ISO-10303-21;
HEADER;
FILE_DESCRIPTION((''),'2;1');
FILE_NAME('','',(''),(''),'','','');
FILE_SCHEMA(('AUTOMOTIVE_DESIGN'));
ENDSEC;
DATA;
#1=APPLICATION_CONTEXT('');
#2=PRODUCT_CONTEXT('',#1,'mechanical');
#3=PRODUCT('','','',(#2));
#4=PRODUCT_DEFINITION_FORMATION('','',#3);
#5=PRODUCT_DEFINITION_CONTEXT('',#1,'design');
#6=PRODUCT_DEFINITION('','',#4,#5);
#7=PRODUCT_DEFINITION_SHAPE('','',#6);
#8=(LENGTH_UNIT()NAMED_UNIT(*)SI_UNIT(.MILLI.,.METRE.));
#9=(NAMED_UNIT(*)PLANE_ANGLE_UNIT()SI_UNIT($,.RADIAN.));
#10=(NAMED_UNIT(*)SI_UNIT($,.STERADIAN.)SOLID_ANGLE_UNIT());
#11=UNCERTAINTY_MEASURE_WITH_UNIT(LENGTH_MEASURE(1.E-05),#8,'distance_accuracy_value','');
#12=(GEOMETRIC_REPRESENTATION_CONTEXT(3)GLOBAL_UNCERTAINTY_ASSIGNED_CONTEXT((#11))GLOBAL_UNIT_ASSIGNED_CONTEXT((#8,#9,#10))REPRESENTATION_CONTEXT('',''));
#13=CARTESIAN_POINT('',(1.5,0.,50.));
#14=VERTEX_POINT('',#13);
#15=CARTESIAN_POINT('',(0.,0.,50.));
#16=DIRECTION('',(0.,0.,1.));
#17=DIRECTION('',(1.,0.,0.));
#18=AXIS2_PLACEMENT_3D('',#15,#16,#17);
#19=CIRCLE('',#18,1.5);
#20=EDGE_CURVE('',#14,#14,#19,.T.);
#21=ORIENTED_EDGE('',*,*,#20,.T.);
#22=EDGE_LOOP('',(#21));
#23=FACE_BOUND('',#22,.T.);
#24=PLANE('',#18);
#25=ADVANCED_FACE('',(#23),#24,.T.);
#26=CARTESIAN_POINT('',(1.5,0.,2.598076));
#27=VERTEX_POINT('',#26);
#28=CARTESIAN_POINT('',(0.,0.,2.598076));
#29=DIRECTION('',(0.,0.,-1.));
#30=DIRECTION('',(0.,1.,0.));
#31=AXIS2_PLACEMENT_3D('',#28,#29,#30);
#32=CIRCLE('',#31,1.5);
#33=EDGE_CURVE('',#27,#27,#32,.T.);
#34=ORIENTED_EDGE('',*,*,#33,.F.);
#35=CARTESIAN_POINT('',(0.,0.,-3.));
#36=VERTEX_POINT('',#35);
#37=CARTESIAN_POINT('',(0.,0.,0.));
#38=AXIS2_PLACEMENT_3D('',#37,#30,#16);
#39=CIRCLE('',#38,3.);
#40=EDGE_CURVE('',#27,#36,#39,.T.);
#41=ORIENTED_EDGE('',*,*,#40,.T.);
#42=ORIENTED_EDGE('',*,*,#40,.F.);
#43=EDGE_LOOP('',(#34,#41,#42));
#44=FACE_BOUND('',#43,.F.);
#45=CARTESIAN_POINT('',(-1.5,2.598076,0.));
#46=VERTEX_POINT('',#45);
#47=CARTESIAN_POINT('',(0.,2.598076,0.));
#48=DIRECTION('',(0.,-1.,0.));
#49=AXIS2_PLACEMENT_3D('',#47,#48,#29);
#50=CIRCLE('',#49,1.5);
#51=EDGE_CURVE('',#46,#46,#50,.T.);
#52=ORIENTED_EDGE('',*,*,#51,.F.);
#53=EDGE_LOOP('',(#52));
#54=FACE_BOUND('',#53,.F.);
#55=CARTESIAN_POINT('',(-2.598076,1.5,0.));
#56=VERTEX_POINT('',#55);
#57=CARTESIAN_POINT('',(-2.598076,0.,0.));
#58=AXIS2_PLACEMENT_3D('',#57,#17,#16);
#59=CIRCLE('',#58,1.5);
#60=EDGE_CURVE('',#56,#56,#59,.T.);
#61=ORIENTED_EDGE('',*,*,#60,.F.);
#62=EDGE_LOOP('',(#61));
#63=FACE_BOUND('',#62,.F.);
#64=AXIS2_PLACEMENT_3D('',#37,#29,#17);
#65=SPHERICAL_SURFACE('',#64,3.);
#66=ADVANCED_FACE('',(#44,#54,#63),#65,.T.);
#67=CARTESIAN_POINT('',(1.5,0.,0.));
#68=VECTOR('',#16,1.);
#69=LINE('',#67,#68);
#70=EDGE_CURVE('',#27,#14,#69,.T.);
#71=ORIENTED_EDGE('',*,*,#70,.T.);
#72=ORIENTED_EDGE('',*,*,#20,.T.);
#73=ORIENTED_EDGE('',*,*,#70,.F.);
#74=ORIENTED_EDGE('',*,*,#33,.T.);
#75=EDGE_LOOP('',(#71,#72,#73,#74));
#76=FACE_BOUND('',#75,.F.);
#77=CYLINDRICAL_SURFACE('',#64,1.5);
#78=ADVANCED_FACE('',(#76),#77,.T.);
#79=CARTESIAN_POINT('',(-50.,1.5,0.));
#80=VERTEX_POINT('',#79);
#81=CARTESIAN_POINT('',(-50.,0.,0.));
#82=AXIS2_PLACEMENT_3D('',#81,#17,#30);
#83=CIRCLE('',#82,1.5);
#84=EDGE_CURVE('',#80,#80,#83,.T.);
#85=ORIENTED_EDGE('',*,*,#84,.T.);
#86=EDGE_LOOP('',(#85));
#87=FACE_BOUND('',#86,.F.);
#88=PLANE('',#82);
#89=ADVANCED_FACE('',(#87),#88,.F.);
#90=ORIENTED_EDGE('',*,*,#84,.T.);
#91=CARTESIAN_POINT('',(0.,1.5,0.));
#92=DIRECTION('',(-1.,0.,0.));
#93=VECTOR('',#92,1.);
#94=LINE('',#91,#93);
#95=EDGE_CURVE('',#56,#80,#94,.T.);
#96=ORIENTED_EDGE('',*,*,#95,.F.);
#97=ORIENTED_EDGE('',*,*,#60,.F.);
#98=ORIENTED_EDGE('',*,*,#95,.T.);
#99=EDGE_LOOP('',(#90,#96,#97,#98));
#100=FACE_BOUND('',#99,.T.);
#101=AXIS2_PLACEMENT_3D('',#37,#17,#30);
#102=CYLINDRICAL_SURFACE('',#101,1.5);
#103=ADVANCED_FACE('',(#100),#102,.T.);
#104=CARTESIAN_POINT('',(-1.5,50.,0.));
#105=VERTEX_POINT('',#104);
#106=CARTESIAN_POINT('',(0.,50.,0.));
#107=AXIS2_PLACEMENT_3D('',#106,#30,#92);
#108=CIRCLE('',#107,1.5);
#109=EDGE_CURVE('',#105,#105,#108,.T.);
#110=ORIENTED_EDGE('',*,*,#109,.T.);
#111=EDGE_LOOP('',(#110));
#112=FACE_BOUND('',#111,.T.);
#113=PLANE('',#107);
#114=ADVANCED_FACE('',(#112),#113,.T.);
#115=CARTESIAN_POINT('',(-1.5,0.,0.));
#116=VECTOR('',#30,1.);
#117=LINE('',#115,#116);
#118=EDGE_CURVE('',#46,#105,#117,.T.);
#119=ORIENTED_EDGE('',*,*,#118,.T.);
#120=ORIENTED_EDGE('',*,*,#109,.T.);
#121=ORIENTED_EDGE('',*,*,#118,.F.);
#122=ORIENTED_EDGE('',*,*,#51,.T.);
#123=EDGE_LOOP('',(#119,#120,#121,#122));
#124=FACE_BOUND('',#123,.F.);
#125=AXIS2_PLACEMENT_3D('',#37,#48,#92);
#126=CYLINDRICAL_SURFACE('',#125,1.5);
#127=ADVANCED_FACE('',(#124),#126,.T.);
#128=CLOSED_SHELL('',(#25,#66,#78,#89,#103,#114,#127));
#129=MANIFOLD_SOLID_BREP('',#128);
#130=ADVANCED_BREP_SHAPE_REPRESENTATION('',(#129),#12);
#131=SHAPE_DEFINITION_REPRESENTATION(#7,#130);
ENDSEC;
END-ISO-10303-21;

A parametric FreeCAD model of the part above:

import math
import FreeCAD as App
import Part
import Sketcher
Q = App.Units.Quantity

doc = App.newDocument("Part")
body = doc.addObject("PartDesign::Body", "Body")

sketch1 = doc.addObject("Sketcher::SketchObject", "Sketch")
body.addObject(sketch1)
sketch1.AttachmentSupport = (doc.XZ_Plane, [""])
sketch1.MapMode = "FlatFace"
sketch1.addGeometry(Part.Circle(App.Vector(0, 0, 0), App.Vector(0, 0, 1), 1.5), False)
sketch1.addConstraint([
    Sketcher.Constraint("Coincident", 0, 3, -1, 1),
    Sketcher.Constraint("Diameter", 0, Q("3 mm")),
])
pad1 = doc.addObject("PartDesign::Pad", "Pad")
body.addObject(pad1)
pad1.Profile = sketch1
pad1.Length = 50
pad1.Reversed = True

sketch2 = doc.addObject("Sketcher::SketchObject", "Sketch001")
body.addObject(sketch2)
sketch2.AttachmentSupport = (doc.XZ_Plane, [""])
sketch2.MapMode = "FlatFace"
sketch2.addGeometry([
    Part.LineSegment(App.Vector(0, -3, 0), App.Vector(0, 3, 0)),
    Part.ArcOfCircle(Part.Circle(App.Vector(0, 0, 0), App.Vector(0, 0, 1), 3), math.radians(-90), math.radians(90)),
], False)
sketch2.addConstraint([
    Sketcher.Constraint("Coincident", 0, 1, 1, 1),
    Sketcher.Constraint("Coincident", 1, 2, 0, 2),
    Sketcher.Constraint("Vertical", 0),
    Sketcher.Constraint("Coincident", 1, 3, -1, 1),
    Sketcher.Constraint("PointOnObject", 0, 1, -2),
    Sketcher.Constraint("Radius", 1, Q("3 mm")),
])
revolution = doc.addObject("PartDesign::Revolution", "Revolution")
body.addObject(revolution)
revolution.Profile = sketch2
revolution.ReferenceAxis = (sketch2, ["V_Axis"])
revolution.Angle = 360

sketch3 = doc.addObject("Sketcher::SketchObject", "Sketch002")
body.addObject(sketch3)
sketch3.AttachmentSupport = (doc.XY_Plane, [""])
sketch3.MapMode = "FlatFace"
sketch3.addGeometry(Part.Circle(App.Vector(0, 0, 0), App.Vector(0, 0, 1), 1.5), False)
sketch3.addConstraint([
    Sketcher.Constraint("Coincident", 0, 3, -1, 1),
    Sketcher.Constraint("Diameter", 0, Q("3 mm")),
])
pad2 = doc.addObject("PartDesign::Pad", "Pad001")
body.addObject(pad2)
pad2.Profile = sketch3
pad2.Length = 50

sketch4 = doc.addObject("Sketcher::SketchObject", "Sketch003")
body.addObject(sketch4)
sketch4.AttachmentSupport = (doc.YZ_Plane, [""])
sketch4.MapMode = "FlatFace"
sketch4.addGeometry(Part.Circle(App.Vector(0, 0, 0), App.Vector(0, 0, 1), 1.5), False)
sketch4.addConstraint([
    Sketcher.Constraint("Coincident", 0, 3, -1, 1),
    Sketcher.Constraint("Diameter", 0, Q("3 mm")),
])
pad3 = doc.addObject("PartDesign::Pad", "Pad002")
body.addObject(pad3)
pad3.Profile = sketch4
pad3.Length = 50
pad3.Reversed = True

doc.recompute()
